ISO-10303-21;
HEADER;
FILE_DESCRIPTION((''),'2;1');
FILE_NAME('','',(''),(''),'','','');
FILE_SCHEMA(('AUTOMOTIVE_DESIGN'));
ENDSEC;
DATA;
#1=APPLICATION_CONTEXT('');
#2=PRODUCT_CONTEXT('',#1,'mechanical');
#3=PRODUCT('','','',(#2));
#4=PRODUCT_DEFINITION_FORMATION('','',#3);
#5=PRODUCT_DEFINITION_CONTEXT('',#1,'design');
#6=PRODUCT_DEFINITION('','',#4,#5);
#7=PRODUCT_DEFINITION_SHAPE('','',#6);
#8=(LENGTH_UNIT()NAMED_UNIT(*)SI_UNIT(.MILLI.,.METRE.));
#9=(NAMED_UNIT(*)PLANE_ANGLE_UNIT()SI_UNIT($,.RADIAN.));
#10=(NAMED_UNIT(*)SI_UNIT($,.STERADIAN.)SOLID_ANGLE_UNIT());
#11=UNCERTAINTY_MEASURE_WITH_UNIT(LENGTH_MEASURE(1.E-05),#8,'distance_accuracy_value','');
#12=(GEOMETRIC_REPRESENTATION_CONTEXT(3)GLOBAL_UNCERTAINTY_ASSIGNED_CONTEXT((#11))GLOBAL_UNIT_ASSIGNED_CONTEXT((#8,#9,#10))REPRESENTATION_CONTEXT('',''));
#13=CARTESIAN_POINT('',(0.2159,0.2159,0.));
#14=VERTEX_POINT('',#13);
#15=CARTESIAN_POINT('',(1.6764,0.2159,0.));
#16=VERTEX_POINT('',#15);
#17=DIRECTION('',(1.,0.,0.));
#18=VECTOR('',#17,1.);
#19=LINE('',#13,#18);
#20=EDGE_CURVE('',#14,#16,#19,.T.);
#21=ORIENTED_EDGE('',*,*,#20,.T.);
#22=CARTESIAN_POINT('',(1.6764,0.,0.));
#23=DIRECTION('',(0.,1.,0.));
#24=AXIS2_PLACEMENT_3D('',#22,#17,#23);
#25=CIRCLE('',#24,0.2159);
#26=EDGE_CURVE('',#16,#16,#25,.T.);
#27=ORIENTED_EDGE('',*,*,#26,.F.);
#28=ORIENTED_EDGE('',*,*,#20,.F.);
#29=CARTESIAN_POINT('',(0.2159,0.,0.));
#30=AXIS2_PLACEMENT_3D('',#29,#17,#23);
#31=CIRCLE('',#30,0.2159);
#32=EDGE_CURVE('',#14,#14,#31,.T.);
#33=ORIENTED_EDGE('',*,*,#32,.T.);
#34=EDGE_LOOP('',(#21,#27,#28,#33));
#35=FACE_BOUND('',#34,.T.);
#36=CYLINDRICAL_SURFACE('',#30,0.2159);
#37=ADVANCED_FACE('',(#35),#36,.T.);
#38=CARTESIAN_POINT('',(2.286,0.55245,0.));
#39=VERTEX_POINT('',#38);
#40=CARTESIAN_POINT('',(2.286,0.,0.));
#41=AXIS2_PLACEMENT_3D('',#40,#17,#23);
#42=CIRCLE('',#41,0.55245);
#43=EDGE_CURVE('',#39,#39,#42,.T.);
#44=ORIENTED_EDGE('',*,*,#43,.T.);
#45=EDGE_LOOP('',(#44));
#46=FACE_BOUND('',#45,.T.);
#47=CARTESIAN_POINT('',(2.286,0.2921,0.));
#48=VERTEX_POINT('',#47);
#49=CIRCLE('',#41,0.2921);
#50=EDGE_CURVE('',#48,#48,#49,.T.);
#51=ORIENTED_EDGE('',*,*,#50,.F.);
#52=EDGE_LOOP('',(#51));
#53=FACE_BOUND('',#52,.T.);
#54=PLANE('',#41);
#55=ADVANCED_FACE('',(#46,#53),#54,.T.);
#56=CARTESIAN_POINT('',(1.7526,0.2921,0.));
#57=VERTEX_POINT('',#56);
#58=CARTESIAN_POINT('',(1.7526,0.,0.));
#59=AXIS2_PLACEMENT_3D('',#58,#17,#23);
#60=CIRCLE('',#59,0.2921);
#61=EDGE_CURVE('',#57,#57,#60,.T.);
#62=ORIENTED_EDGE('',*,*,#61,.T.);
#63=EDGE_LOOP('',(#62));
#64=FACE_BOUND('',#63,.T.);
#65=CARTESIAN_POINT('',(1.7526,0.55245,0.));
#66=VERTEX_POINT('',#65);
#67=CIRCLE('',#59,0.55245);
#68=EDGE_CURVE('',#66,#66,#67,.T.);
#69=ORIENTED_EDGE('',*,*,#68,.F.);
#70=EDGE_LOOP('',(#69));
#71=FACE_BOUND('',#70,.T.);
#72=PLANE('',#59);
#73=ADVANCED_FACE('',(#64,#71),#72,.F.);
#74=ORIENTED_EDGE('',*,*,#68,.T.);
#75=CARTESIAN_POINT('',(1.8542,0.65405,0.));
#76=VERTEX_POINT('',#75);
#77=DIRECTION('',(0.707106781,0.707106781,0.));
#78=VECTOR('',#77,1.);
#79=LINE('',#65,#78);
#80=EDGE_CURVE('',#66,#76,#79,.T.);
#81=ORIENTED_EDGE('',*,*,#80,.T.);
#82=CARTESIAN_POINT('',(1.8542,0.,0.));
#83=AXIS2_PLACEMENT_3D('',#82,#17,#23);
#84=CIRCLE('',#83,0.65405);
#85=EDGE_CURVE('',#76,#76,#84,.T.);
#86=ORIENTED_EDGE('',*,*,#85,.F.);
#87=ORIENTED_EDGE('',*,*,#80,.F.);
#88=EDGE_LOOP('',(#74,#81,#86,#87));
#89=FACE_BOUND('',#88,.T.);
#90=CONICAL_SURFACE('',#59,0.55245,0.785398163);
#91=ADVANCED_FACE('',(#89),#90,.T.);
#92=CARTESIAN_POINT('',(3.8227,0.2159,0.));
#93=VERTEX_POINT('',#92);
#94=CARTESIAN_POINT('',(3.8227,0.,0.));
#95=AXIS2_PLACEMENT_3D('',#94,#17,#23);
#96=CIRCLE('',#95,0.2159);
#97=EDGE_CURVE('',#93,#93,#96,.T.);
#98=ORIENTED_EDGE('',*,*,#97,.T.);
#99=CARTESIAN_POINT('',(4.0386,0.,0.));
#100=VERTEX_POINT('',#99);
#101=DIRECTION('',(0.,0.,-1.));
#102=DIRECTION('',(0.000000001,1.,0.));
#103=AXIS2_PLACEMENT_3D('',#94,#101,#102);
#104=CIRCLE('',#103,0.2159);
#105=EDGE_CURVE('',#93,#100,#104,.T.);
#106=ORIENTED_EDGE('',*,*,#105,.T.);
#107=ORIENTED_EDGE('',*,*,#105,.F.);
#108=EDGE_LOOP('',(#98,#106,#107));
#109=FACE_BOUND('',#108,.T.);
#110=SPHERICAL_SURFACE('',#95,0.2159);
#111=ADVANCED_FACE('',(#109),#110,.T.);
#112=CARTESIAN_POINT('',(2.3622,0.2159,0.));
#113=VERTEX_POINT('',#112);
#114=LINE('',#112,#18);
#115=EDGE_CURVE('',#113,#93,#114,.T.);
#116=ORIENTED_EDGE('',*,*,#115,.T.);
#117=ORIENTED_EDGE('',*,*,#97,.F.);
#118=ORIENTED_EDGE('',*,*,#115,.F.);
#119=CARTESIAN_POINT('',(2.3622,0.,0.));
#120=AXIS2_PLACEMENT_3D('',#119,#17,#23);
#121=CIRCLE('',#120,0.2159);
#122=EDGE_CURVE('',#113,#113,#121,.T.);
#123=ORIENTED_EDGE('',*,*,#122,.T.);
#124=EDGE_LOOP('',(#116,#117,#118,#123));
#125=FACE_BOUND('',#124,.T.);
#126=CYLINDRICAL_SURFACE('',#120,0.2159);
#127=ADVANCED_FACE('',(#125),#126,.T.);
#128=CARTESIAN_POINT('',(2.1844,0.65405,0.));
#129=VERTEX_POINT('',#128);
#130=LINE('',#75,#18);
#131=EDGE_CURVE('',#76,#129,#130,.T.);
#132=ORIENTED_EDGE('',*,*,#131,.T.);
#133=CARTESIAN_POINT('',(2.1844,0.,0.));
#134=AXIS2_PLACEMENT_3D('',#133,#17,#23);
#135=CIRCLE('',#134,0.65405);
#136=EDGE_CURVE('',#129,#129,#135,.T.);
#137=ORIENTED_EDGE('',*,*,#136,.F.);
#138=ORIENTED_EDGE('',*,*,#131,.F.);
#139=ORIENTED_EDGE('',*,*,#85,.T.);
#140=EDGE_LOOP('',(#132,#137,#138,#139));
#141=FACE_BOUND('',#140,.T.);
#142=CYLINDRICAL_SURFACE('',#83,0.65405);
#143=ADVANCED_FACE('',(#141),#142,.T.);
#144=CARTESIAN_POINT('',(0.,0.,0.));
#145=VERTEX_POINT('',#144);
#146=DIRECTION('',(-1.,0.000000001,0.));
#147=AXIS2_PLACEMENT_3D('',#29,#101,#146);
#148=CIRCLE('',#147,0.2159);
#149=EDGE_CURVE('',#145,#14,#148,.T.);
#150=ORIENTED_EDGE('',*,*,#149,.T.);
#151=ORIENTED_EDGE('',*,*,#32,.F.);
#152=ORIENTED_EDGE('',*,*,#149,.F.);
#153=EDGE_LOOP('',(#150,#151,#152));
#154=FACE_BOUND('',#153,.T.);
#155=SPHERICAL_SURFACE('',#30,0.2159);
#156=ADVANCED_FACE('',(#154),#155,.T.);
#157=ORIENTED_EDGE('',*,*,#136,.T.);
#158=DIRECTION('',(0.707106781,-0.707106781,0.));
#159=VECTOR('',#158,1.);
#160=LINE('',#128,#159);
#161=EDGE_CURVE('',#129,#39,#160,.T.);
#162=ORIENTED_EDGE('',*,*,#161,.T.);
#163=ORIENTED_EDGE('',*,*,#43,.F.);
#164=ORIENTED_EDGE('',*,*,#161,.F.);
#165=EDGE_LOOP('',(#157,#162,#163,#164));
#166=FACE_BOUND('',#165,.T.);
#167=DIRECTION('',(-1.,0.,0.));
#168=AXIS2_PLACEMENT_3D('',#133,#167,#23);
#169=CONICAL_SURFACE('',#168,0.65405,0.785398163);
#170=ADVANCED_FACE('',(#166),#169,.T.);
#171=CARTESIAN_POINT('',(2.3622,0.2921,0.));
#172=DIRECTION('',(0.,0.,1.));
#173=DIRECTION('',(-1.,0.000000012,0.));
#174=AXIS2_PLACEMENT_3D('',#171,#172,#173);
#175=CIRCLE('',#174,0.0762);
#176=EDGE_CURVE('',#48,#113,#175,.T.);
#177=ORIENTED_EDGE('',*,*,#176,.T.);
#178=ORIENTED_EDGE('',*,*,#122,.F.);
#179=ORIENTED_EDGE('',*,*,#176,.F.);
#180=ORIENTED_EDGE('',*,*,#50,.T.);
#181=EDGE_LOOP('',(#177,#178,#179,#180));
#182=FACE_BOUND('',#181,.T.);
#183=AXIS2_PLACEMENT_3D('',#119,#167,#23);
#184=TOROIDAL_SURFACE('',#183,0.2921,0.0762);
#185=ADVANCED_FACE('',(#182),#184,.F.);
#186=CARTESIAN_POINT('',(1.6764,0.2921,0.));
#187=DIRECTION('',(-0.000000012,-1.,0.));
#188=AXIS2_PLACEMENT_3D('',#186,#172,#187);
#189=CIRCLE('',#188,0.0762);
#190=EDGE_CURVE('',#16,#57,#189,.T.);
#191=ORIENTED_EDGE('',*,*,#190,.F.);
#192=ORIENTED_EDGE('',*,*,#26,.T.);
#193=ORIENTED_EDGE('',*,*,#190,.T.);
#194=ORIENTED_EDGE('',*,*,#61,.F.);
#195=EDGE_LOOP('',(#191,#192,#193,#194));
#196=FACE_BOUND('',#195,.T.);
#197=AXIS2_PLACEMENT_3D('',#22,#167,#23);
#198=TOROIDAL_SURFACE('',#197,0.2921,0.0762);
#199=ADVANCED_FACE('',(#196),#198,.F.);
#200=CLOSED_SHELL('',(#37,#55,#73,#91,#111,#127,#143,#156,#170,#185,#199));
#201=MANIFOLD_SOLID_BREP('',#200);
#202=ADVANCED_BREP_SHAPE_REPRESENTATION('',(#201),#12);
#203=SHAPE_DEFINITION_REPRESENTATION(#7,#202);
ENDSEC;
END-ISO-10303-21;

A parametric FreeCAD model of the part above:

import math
import FreeCAD as App
import Part
import Sketcher
Q = App.Units.Quantity

doc = App.newDocument("Part")
body = doc.addObject("PartDesign::Body", "Body")

sketch1 = doc.addObject("Sketcher::SketchObject", "Sketch")
body.addObject(sketch1)
sketch1.AttachmentSupport = (doc.XY_Plane, [""])
sketch1.MapMode = "FlatFace"
sketch1.addGeometry([
    Part.LineSegment(App.Vector(1.68, 0.22, 0), App.Vector(0.22, 0.22, 0)),
    Part.ArcOfCircle(Part.Circle(App.Vector(0.22, 0, 0), App.Vector(0, 0, 1), 0.22), math.radians(90), math.radians(180)),
    Part.LineSegment(App.Vector(0, 0, 0), App.Vector(4.04, 0, 0)),
    Part.ArcOfCircle(Part.Circle(App.Vector(3.82, 0, 0), App.Vector(0, 0, 1), 0.22), math.radians(0), math.radians(90)),
    Part.LineSegment(App.Vector(3.82, 0.22, 0), App.Vector(2.36, 0.22, 0)),
    Part.ArcOfCircle(Part.Circle(App.Vector(2.36, 0.29, 0), App.Vector(0, 0, 1), 0.08), math.radians(180), math.radians(270)),
    Part.LineSegment(App.Vector(2.29, 0.29, 0), App.Vector(2.29, 0.55, 0)),
    Part.LineSegment(App.Vector(2.29, 0.55, 0), App.Vector(2.18, 0.65, 0)),
    Part.LineSegment(App.Vector(2.18, 0.65, 0), App.Vector(1.85, 0.65, 0)),
    Part.LineSegment(App.Vector(1.85, 0.65, 0), App.Vector(1.75, 0.55, 0)),
    Part.LineSegment(App.Vector(1.75, 0.55, 0), App.Vector(1.75, 0.29, 0)),
    Part.ArcOfCircle(Part.Circle(App.Vector(1.68, 0.29, 0), App.Vector(0, 0, 1), 0.08), math.radians(-90), math.radians(0)),
], False)
sketch1.addConstraint([
    Sketcher.Constraint("Tangent", 0, 2, 1, 1),
    Sketcher.Constraint("Coincident", 1, 2, 2, 1),
    Sketcher.Constraint("Coincident", 2, 2, 3, 1),
    Sketcher.Constraint("Tangent", 3, 2, 4, 1),
    Sketcher.Constraint("Tangent", 4, 2, 5, 2),
    Sketcher.Constraint("Tangent", 5, 1, 6, 1),
    Sketcher.Constraint("Coincident", 6, 2, 7, 1),
    Sketcher.Constraint("Coincident", 7, 2, 8, 1),
    Sketcher.Constraint("Coincident", 8, 2, 9, 1),
    Sketcher.Constraint("Coincident", 9, 2, 10, 1),
    Sketcher.Constraint("Tangent", 10, 2, 11, 2),
    Sketcher.Constraint("Tangent", 11, 1, 0, 1),
    Sketcher.Constraint("Horizontal", 0),
    Sketcher.Constraint("Horizontal", 2),
    Sketcher.Constraint("Horizontal", 4),
    Sketcher.Constraint("Vertical", 6),
    Sketcher.Constraint("Horizontal", 8),
    Sketcher.Constraint("Vertical", 10),
    Sketcher.Constraint("Coincident", 1, 2, -1, 1),
    Sketcher.Constraint("Equal", 1, 3),
    Sketcher.Constraint("Equal", 5, 11),
    Sketcher.Constraint("PointOnObject", 1, 3, -1),
    Sketcher.Constraint("PointOnObject", 3, 3, -1),
    Sketcher.Constraint("Perpendicular", 7, 9),
    Sketcher.Constraint("Horizontal", 6, 2, 9, 2),
    Sketcher.Constraint("Equal", 0, 4),
    Sketcher.Constraint("Equal", 7, 9),
    Sketcher.Constraint("Radius", 5, Q("0.003 in")),
    Sketcher.Constraint("Radius", 1, Q("0.0085 in")),
    Sketcher.Constraint("DistanceX", 2, 1, 2, 2, Q("0.159 in")),
    Sketcher.Constraint("DistanceX", 8, 2, 8, 1, Q("0.013 in")),
    Sketcher.Constraint("DistanceX", -1, 1, 5, 1, Q("0.09 in")),
    Sketcher.Constraint("DistanceY", 6, 1, 6, 2, 0.26035),
])
revolution = doc.addObject("PartDesign::Revolution", "Revolution")
body.addObject(revolution)
revolution.Profile = sketch1
revolution.ReferenceAxis = (sketch1, ["H_Axis"])
revolution.Angle = 360

doc.recompute()
